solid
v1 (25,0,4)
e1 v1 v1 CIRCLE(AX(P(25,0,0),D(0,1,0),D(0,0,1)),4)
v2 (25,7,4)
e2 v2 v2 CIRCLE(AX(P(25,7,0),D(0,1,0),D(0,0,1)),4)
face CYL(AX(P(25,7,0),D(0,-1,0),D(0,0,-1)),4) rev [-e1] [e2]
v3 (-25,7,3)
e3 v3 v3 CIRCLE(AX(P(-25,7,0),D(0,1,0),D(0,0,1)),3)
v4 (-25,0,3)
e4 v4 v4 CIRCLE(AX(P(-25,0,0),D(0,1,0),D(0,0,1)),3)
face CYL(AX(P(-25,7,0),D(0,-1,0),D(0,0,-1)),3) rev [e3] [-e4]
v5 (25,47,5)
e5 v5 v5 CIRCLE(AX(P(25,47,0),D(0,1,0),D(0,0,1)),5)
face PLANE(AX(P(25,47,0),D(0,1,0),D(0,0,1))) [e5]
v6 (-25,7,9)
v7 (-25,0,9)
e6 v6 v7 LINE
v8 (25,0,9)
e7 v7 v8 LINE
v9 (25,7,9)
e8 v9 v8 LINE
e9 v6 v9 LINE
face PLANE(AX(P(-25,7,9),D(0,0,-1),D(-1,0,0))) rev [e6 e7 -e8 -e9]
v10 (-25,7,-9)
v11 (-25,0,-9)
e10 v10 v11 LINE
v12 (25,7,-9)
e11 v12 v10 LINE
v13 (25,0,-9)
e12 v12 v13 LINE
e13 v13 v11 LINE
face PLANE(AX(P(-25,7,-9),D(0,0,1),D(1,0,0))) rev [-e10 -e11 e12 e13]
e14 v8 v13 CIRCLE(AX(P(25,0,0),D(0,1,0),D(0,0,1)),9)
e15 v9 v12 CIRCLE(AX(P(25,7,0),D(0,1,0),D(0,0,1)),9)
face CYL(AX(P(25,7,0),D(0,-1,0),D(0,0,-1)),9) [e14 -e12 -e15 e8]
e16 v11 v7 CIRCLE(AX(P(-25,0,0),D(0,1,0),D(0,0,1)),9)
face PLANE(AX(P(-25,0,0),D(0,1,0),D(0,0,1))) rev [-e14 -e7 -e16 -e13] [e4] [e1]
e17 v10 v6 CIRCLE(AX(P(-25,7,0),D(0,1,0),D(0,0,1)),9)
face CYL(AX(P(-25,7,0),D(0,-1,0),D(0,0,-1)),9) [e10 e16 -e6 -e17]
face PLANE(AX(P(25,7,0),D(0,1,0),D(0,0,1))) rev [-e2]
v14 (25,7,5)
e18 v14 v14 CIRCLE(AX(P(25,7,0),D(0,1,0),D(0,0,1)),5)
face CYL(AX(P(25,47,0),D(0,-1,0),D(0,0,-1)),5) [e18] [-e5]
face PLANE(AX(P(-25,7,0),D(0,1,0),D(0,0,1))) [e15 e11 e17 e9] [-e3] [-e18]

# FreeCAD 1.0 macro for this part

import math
import FreeCAD as App
import Part
import Sketcher
Q = App.Units.Quantity

doc = App.newDocument("Part")
body = doc.addObject("PartDesign::Body", "Body")

# Sketch on XZ plane
sketch1 = body.newObject("Sketcher::SketchObject", "Sketch")
sketch1.AttachmentSupport = (doc.getObject("XZ_Plane"), [""])
sketch1.MapMode = "FlatFace"
sketch1.addGeometry([
    Part.LineSegment(App.Vector(25, -9, 0), App.Vector(-25, -9, 0)),  # 0
    Part.ArcOfCircle(Part.Circle(App.Vector(-25, 0, 0), App.Vector(0, 0, 1), 9), math.radians(90), math.radians(270)),  # 1
    Part.LineSegment(App.Vector(-25, 9, 0), App.Vector(25, 9, 0)),  # 2
    Part.ArcOfCircle(Part.Circle(App.Vector(25, 0, 0), App.Vector(0, 0, 1), 9), math.radians(-90), math.radians(90)),  # 3
    Part.Circle(App.Vector(25, 0, 0), App.Vector(0, 0, 1), 4),  # 4
    Part.Circle(App.Vector(-25, 0, 0), App.Vector(0, 0, 1), 3),  # 5
], False)
sketch1.addConstraint([
    Sketcher.Constraint("Tangent", 0, 2, 1, 2),
    Sketcher.Constraint("Tangent", 1, 1, 2, 1),
    Sketcher.Constraint("Tangent", 2, 2, 3, 2),
    Sketcher.Constraint("Tangent", 3, 1, 0, 1),
    Sketcher.Constraint("Horizontal", 0),
    Sketcher.Constraint("Horizontal", 2),
    Sketcher.Constraint("Coincident", 4, 3, 3, 3),
    Sketcher.Constraint("Coincident", 5, 3, 1, 3),
    Sketcher.Constraint("Symmetric", 1, 3, 3, 3, -1, 1),
    Sketcher.Constraint("Diameter", 4, Q("8 mm")),
    Sketcher.Constraint("Diameter", 5, Q("6 mm")),
    Sketcher.Constraint("Radius", 1, Q("9 mm")),
    Sketcher.Constraint("DistanceX", 0, 2, 0, 1, Q("50 mm")),
])
pad1 = body.newObject("PartDesign::Pad", "Pad")
pad1.Profile = sketch1
pad1.Length = 7
pad1.Reversed = True

# Sketch on XZ plane
sketch2 = body.newObject("Sketcher::SketchObject", "Sketch001")
sketch2.AttachmentSupport = (doc.getObject("XZ_Plane"), [""])
sketch2.MapMode = "FlatFace"
sketch2.AttachmentOffset = App.Placement(App.Vector(0, 0, -7), App.Rotation())
sketch2.addGeometry(Part.Circle(App.Vector(25, 0, 0), App.Vector(0, 0, 1), 5), False)
sketch2.addConstraint([
    Sketcher.Constraint("PointOnObject", 0, 3, -1),
    Sketcher.Constraint("Diameter", 0, Q("10 mm")),
    Sketcher.Constraint("DistanceX", -1, 1, 0, 3, Q("25 mm")),
])
pad2 = body.newObject("PartDesign::Pad", "Pad001")
pad2.Profile = sketch2
pad2.Length = 40
pad2.Reversed = True

doc.recompute()
